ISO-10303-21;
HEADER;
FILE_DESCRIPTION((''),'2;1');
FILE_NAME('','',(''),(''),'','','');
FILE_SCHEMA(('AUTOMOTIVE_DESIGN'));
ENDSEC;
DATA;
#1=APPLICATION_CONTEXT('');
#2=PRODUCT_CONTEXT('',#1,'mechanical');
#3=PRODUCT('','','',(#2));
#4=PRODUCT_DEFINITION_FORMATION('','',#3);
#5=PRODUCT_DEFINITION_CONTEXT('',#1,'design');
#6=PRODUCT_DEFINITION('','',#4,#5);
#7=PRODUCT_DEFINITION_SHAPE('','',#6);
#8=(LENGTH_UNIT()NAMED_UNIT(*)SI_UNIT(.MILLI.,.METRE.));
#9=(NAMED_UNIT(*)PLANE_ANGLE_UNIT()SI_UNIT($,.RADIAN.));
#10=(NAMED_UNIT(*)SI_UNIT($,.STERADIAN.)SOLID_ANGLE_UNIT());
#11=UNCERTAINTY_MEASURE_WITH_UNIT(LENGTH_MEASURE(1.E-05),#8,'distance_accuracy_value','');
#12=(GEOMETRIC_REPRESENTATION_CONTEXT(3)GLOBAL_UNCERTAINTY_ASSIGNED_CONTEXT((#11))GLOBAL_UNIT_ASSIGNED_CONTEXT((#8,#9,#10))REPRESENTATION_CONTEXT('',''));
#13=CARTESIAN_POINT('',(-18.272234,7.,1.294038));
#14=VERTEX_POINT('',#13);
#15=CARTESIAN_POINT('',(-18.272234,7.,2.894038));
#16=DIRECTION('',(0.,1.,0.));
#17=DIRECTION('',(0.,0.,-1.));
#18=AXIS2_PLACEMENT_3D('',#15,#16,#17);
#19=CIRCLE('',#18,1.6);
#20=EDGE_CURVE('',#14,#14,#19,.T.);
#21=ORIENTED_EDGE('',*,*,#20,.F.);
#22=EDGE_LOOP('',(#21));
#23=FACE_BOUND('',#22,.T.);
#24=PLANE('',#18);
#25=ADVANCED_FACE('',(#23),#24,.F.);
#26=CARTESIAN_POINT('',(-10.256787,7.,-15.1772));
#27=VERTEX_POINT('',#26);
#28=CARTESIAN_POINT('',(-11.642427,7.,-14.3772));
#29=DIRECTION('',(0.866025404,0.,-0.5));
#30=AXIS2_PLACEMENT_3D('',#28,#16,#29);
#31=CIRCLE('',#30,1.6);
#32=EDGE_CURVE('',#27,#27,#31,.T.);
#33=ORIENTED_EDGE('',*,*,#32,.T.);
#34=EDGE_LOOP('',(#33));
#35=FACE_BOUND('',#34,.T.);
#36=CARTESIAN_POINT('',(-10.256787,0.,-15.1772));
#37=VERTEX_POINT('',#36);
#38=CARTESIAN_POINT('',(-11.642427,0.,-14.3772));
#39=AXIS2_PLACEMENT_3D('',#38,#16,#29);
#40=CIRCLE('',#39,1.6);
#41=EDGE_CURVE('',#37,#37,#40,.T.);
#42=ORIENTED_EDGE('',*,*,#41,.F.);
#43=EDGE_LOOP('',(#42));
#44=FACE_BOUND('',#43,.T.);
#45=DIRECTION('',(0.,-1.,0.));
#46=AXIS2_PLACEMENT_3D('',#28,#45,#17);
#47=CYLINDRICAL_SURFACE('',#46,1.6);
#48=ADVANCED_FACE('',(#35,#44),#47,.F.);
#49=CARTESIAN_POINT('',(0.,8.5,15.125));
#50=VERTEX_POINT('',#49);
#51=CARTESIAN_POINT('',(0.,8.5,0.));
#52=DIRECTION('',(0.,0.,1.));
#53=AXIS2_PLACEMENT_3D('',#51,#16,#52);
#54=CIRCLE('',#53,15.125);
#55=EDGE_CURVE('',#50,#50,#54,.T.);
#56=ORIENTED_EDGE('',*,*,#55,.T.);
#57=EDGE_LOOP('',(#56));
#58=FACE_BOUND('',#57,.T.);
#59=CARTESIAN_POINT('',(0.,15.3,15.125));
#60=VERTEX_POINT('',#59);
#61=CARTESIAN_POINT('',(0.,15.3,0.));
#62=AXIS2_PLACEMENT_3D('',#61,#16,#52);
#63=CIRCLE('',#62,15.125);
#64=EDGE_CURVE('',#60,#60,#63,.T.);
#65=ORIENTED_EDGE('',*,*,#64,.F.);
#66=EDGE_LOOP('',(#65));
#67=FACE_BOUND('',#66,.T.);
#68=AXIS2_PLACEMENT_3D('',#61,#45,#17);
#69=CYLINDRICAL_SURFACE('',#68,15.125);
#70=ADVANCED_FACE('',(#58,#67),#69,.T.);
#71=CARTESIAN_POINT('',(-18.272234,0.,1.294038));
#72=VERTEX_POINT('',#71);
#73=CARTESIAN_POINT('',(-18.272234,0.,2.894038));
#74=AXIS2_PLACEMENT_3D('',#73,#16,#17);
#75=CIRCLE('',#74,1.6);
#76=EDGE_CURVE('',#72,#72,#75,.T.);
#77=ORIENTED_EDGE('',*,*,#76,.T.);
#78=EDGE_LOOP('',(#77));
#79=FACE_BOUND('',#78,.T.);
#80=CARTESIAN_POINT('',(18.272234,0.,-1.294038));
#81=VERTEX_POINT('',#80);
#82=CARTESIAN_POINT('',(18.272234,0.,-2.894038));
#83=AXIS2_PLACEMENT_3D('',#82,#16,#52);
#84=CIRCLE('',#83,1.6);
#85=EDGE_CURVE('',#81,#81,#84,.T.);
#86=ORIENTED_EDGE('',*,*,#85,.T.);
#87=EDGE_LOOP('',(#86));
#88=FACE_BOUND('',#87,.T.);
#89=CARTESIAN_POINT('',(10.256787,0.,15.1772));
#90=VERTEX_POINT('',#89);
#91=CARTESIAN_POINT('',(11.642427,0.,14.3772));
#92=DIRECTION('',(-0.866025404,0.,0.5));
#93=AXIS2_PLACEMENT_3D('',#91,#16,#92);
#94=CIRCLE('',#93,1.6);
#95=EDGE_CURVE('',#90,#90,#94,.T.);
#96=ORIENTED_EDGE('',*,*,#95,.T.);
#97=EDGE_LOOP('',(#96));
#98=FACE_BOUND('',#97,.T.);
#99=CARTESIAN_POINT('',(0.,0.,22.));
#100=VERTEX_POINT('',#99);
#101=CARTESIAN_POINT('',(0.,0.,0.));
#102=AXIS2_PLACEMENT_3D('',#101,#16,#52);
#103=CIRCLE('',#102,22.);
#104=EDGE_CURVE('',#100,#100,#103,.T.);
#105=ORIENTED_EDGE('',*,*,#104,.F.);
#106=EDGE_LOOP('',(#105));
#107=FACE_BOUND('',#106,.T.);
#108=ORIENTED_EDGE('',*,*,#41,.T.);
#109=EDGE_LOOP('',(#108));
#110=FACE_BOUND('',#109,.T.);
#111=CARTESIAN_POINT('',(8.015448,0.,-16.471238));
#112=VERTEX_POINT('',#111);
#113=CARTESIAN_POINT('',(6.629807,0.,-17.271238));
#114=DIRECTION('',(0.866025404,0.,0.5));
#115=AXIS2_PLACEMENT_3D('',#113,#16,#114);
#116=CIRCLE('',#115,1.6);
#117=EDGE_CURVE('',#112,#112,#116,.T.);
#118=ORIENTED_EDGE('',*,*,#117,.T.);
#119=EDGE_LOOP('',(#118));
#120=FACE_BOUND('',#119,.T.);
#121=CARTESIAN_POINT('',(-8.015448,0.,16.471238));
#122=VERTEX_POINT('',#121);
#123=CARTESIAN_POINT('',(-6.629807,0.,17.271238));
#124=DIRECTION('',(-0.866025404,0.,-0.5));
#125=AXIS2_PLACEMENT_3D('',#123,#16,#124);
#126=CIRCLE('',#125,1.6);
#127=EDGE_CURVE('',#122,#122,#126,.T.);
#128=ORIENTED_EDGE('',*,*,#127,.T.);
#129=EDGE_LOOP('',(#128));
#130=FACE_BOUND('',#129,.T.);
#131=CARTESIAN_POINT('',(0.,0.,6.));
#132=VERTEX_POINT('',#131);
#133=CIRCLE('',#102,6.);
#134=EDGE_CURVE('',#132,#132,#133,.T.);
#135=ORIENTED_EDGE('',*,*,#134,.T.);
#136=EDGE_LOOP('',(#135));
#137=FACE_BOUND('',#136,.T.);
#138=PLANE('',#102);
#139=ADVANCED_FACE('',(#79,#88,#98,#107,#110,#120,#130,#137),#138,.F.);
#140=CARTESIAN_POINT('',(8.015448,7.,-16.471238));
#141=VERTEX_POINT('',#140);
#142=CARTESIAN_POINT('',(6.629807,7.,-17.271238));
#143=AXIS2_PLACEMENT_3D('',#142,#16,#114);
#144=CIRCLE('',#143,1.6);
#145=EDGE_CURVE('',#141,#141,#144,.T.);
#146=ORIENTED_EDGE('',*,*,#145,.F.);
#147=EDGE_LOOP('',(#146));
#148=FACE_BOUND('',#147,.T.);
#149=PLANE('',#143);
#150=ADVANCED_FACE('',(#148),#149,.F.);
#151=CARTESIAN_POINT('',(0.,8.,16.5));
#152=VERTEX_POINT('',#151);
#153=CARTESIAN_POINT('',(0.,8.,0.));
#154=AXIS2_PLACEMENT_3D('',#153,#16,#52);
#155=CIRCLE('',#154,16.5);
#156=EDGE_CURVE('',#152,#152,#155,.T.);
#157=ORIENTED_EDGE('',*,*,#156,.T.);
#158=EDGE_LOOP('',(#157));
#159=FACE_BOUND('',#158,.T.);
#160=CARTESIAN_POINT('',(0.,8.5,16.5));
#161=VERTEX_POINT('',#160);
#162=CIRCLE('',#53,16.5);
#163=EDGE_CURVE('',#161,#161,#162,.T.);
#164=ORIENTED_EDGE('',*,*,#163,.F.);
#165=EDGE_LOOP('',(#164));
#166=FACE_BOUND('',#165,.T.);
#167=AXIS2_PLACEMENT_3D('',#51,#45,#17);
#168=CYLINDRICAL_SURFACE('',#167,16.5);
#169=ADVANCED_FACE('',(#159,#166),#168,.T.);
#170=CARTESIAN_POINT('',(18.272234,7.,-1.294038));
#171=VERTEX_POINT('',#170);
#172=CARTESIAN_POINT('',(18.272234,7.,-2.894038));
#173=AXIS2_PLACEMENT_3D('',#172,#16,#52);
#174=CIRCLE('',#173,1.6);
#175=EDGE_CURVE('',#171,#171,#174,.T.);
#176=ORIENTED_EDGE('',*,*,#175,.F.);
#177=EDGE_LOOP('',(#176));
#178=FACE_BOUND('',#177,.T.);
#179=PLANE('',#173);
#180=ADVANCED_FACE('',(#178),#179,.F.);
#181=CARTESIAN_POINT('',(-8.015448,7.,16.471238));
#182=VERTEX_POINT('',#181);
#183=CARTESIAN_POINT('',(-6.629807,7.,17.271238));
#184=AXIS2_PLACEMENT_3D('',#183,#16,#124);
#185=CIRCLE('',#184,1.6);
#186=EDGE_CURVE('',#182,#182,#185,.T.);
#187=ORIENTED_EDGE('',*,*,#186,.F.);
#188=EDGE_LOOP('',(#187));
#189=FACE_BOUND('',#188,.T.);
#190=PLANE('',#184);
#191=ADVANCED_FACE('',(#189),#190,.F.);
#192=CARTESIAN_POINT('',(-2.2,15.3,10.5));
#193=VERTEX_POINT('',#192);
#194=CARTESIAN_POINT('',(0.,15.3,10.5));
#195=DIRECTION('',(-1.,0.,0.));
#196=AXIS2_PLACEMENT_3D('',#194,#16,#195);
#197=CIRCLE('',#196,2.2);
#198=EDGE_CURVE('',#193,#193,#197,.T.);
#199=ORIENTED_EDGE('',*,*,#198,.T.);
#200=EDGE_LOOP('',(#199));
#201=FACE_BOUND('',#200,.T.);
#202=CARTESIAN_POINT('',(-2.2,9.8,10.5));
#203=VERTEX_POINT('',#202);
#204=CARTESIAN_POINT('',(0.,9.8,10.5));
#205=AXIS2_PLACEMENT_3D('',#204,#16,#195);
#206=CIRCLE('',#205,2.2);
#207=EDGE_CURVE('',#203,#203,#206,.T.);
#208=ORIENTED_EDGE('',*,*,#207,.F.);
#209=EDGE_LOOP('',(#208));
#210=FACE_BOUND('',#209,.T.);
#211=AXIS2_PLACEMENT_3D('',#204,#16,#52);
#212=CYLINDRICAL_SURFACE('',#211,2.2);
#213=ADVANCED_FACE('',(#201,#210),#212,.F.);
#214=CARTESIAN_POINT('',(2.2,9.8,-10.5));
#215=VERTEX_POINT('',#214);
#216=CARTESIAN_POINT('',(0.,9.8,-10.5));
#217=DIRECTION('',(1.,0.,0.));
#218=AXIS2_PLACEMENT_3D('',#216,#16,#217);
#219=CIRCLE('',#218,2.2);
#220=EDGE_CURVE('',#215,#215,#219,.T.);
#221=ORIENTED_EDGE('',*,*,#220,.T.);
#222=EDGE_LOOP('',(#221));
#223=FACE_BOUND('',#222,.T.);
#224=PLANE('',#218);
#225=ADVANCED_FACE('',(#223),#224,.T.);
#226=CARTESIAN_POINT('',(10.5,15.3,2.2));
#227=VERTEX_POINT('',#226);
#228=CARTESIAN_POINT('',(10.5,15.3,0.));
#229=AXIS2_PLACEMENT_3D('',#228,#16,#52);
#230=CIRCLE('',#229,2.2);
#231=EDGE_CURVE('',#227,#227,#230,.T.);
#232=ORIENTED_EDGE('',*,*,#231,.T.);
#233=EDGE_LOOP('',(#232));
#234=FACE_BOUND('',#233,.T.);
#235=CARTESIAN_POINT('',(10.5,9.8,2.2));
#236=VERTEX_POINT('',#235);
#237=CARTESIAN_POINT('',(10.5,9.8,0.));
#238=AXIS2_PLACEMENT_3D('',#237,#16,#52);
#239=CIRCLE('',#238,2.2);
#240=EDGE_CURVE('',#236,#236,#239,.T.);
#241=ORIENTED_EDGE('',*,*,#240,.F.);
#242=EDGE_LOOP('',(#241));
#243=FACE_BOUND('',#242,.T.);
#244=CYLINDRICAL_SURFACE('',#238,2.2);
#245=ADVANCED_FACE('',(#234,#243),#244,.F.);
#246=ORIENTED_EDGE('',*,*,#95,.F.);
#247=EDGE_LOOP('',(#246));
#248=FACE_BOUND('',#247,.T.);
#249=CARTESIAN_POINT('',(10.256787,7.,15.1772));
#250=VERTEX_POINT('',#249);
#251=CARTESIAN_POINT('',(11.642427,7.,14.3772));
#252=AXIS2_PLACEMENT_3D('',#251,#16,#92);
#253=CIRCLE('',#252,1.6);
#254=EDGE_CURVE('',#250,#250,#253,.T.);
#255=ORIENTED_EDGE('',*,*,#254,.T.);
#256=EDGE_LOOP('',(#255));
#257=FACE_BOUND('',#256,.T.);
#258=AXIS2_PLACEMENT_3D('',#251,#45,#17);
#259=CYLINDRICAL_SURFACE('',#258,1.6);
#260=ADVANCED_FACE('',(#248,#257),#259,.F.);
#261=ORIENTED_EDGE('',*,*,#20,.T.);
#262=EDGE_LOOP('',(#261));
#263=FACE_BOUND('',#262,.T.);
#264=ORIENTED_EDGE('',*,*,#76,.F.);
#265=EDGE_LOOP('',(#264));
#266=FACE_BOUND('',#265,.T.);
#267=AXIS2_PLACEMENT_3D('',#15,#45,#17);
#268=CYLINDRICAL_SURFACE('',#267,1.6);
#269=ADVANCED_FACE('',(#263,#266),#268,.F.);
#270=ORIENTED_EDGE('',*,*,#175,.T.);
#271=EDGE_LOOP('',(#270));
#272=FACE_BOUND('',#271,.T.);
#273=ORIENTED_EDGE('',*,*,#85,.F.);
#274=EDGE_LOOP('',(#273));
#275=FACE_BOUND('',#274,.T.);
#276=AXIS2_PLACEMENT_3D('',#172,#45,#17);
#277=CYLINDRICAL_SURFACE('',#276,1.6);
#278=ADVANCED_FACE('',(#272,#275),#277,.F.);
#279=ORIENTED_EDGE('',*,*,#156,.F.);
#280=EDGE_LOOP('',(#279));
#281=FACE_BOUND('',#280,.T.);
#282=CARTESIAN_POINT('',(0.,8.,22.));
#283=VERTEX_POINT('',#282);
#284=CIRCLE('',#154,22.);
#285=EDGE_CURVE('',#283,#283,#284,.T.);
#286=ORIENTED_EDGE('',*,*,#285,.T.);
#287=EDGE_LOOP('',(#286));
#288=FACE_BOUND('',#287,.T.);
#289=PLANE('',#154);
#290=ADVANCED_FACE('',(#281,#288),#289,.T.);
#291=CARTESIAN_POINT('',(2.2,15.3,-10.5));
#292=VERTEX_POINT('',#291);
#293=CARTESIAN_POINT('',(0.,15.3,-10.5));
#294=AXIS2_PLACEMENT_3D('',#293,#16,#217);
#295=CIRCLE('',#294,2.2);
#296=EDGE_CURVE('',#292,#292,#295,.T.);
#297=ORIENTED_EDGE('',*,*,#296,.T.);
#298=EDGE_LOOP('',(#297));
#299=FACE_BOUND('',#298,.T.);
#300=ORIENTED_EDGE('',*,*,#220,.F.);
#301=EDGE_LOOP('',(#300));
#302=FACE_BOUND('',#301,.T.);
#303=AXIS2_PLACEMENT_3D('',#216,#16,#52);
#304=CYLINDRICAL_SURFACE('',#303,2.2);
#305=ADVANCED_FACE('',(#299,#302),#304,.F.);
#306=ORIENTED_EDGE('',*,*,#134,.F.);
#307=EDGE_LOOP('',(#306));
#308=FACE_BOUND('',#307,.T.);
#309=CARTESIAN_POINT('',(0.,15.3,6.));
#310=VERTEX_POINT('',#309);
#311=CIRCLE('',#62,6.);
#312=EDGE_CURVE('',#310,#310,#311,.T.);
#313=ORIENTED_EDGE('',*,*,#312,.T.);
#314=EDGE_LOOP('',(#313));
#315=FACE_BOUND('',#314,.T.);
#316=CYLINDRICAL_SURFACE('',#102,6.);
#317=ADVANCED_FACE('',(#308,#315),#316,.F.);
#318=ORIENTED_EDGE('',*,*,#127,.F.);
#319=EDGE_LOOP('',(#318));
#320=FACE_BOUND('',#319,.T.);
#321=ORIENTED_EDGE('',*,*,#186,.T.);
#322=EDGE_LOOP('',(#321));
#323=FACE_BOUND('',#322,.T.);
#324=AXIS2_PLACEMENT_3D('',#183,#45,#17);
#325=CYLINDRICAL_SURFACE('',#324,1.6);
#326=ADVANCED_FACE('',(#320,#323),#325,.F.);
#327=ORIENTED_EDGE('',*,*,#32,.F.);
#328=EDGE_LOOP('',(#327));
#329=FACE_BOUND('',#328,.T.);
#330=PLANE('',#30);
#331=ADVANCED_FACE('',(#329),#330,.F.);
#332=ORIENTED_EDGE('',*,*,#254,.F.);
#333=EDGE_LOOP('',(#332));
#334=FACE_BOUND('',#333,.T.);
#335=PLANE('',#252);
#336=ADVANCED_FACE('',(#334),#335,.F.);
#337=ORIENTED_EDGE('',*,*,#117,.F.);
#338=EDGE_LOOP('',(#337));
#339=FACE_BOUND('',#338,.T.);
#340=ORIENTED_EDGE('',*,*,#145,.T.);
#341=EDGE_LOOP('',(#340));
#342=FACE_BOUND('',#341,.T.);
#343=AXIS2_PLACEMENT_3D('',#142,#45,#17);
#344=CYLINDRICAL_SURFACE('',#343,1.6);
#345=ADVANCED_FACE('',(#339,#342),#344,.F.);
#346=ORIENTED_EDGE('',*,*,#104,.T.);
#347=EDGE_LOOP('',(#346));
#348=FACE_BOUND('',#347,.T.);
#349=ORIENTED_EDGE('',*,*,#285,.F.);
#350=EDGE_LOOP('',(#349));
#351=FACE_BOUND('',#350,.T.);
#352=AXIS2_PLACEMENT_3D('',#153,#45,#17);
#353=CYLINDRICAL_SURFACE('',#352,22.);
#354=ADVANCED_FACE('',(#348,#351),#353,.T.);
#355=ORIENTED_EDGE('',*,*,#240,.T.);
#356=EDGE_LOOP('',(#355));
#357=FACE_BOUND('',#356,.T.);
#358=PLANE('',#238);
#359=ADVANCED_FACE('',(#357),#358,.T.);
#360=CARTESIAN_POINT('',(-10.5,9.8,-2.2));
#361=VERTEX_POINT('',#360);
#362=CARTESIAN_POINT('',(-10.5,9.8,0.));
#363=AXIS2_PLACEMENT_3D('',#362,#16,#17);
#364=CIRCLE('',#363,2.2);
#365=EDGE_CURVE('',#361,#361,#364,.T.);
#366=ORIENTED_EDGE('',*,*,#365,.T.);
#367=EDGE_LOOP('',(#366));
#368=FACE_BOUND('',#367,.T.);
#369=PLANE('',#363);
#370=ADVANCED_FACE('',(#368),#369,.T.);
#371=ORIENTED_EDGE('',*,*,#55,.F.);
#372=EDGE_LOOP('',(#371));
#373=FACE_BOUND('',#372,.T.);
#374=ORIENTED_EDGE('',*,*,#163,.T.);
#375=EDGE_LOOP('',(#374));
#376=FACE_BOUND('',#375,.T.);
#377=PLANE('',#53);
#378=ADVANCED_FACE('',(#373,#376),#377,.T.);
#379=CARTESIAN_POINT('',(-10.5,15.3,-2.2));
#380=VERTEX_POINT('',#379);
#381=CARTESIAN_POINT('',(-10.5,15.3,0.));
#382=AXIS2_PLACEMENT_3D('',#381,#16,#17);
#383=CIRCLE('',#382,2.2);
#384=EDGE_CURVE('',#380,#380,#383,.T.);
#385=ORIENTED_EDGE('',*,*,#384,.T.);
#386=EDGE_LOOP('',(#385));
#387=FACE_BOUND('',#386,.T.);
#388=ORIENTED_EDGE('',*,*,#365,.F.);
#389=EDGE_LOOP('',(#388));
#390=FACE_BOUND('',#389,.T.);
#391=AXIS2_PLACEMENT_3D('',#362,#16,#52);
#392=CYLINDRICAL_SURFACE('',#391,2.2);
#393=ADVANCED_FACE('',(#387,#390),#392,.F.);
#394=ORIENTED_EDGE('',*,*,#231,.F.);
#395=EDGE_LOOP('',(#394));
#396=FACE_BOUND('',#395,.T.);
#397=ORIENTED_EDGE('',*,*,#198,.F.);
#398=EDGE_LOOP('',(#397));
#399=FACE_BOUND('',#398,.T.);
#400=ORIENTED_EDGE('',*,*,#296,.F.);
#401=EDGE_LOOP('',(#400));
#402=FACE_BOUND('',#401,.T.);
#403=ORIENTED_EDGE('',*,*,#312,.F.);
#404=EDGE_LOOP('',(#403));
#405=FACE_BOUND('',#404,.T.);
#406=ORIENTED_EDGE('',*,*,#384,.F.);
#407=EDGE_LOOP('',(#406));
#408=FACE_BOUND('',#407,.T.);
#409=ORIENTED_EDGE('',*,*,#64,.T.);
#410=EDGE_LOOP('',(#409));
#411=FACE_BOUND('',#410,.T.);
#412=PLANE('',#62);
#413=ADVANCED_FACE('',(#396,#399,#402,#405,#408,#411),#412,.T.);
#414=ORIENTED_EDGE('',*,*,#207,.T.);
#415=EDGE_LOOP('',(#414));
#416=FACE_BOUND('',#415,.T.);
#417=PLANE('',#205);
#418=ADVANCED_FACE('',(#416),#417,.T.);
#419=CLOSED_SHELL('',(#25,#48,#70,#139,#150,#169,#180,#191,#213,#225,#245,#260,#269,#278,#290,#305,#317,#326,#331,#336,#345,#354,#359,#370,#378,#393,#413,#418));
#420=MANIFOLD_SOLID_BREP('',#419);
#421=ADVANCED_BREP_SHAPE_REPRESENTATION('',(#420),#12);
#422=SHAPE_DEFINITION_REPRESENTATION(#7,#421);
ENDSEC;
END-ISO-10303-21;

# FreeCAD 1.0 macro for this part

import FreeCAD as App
import Part
import Sketcher
from FreeCAD import Vector

doc = App.newDocument("Part")
body = doc.addObject("PartDesign::Body", "Body")

# Sketch on XZ plane
sketch1 = body.newObject("Sketcher::SketchObject", "Sketch")
sketch1.AttachmentSupport = (doc.getObject("XZ_Plane"), [""])
sketch1.MapMode = "FlatFace"
sketch1.addGeometry(Part.Circle(Vector(0, 0, 0), Vector(0, 0, 1), 22), False)
sketch1.addConstraint([
    Sketcher.Constraint("Coincident", 0, 3, -1, 1),
    Sketcher.Constraint("Diameter", 0, 44.0),
])
pad1 = body.newObject("PartDesign::Pad", "Pad")
pad1.Profile = sketch1
pad1.Length = 8
pad1.Reversed = True

# Sketch on XZ plane
sketch2 = body.newObject("Sketcher::SketchObject", "Sketch001")
sketch2.AttachmentSupport = (doc.getObject("XZ_Plane"), [""])
sketch2.MapMode = "FlatFace"
sketch2.AttachmentOffset = App.Placement(Vector(0, 0, -8), App.Rotation())
sketch2.addGeometry(Part.Circle(Vector(0, 0, 0), Vector(0, 0, 1), 16), False)
sketch2.addConstraint([
    Sketcher.Constraint("Coincident", 0, 3, -1, 1),
    Sketcher.Constraint("Diameter", 0, 33.0),
])
pad2 = body.newObject("PartDesign::Pad", "Pad001")
pad2.Profile = sketch2
pad2.Length = 0.5
pad2.Reversed = True

# Sketch on XZ plane
sketch3 = body.newObject("Sketcher::SketchObject", "Sketch002")
sketch3.AttachmentSupport = (doc.getObject("XZ_Plane"), [""])
sketch3.MapMode = "FlatFace"
sketch3.AttachmentOffset = App.Placement(Vector(0, 0, -8.5), App.Rotation())
sketch3.addGeometry(Part.Circle(Vector(0, 0, 0), Vector(0, 0, 1), 15), False)
sketch3.addConstraint([
    Sketcher.Constraint("Coincident", 0, 3, -1, 1),
    Sketcher.Constraint("Diameter", 0, 30.25),
])
pad3 = body.newObject("PartDesign::Pad", "Pad002")
pad3.Profile = sketch3
pad3.Length = 6.8
pad3.Reversed = True

# Sketch on XZ plane
sketch4 = body.newObject("Sketcher::SketchObject", "Sketch003")
sketch4.AttachmentSupport = (doc.getObject("XZ_Plane"), [""])
sketch4.MapMode = "FlatFace"
sketch4.AttachmentOffset = App.Placement(Vector(0, 0, -15.3), App.Rotation())
sketch4.addGeometry(Part.Circle(Vector(0, 0, 0), Vector(0, 0, 1), 6), False)
sketch4.addConstraint([
    Sketcher.Constraint("Coincident", 0, 3, -1, 1),
    Sketcher.Constraint("Diameter", 0, 12.0),
])
pocket1 = body.newObject("PartDesign::Pocket", "Pocket")
pocket1.Profile = sketch4
pocket1.Type = "ThroughAll"
pocket1.Reversed = True

# Sketch on XZ plane
sketch5 = body.newObject("Sketcher::SketchObject", "Sketch004")
sketch5.AttachmentSupport = (doc.getObject("XZ_Plane"), [""])
sketch5.MapMode = "FlatFace"
sketch5.addGeometry(Part.Circle(Vector(18.3, -2.9, 0), Vector(0, 0, 1), 1.6), False)
sketch5.addConstraint([
    Sketcher.Constraint("Diameter", 0, 3.2),
    Sketcher.Constraint("DistanceX", -1, 1, 0, 3, 18.272234),
    Sketcher.Constraint("DistanceY", 0, 3, -1, 1, 2.894038),
])
pocket2 = body.newObject("PartDesign::Pocket", "Pocket001")
pocket2.Profile = sketch5
pocket2.Length = 7
doc.recompute()

polarpattern = body.newObject("PartDesign::PolarPattern", "PolarPattern")
polarpattern.Originals = [pocket2]
polarpattern.Axis = (doc.getObject("Y_Axis"), [""])
polarpattern.Angle = 360
polarpattern.Occurrences = 6
body.Tip = polarpattern

# Sketch on XZ plane
sketch6 = body.newObject("Sketcher::SketchObject", "Sketch005")
sketch6.AttachmentSupport = (doc.getObject("XZ_Plane"), [""])
sketch6.MapMode = "FlatFace"
sketch6.AttachmentOffset = App.Placement(Vector(0, 0, -15.3), App.Rotation())
sketch6.addGeometry(Part.Circle(Vector(10.5, 0, 0), Vector(0, 0, 1), 2.2), False)
sketch6.addConstraint([
    Sketcher.Constraint("PointOnObject", 0, 3, -1),
    Sketcher.Constraint("Diameter", 0, 4.4),
    Sketcher.Constraint("DistanceX", -1, 1, 0, 3, 10.5),
])
pocket3 = body.newObject("PartDesign::Pocket", "Pocket002")
pocket3.Profile = sketch6
pocket3.Length = 5.5
pocket3.Reversed = True
doc.recompute()

polarpattern2 = body.newObject("PartDesign::PolarPattern", "PolarPattern001")
polarpattern2.Originals = [pocket3]
polarpattern2.Axis = (doc.getObject("Y_Axis"), [""])
polarpattern2.Angle = 360
polarpattern2.Occurrences = 4
body.Tip = polarpattern2

doc.recompute()
